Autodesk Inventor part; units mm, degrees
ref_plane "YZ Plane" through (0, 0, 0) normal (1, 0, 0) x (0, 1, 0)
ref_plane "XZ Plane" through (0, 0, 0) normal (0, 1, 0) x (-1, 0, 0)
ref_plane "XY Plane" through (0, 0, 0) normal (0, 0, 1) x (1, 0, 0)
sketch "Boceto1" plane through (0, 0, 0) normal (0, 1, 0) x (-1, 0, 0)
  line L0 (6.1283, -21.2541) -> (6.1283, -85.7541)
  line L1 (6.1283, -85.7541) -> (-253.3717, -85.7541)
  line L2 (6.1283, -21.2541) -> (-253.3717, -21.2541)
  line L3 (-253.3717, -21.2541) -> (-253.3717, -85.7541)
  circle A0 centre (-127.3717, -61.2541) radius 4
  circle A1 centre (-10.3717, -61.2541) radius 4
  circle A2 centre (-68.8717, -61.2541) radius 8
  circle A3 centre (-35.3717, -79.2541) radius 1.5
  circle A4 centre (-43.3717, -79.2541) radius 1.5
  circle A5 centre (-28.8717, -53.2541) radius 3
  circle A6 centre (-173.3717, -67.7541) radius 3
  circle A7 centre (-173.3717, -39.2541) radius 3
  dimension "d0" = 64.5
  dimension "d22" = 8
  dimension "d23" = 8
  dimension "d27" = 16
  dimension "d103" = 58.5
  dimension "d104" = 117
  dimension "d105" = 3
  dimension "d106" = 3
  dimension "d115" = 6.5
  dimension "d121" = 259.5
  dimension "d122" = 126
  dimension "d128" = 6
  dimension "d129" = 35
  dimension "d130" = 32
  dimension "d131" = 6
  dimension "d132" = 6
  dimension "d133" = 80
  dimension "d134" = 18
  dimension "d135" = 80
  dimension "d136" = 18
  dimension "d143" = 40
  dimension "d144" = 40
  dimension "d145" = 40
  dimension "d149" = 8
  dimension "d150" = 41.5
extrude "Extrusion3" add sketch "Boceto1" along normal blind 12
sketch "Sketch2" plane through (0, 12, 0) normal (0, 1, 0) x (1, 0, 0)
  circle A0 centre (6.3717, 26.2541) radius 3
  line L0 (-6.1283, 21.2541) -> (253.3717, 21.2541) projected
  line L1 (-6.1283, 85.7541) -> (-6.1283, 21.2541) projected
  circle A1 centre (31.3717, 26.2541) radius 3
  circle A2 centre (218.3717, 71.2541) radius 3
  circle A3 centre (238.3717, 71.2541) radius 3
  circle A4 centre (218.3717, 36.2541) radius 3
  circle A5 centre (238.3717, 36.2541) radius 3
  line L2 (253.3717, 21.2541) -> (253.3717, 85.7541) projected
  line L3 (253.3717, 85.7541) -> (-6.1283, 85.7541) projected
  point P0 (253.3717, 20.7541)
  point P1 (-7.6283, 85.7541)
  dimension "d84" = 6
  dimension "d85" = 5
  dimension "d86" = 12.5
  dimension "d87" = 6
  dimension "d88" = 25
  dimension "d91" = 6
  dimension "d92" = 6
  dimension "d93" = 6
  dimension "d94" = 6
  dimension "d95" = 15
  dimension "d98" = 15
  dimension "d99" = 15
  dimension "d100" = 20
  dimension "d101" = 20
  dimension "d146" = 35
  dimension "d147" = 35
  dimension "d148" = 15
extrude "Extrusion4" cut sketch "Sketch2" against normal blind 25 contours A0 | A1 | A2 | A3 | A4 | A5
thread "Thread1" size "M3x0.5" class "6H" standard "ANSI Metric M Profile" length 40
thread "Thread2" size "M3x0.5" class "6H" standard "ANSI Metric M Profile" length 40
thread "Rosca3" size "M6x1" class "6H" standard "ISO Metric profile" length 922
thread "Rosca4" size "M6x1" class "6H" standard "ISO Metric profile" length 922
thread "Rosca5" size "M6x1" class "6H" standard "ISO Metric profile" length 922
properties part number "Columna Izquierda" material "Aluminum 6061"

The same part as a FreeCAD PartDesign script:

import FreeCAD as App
import Part
import Sketcher
from FreeCAD import Vector

doc = App.newDocument("Part")
body = doc.addObject("PartDesign::Body", "Body")

sketch1 = body.newObject("Sketcher::SketchObject", "Sketch")
sketch1.AttachmentSupport = (doc.getObject("XZ_Plane"), [""])
sketch1.MapMode = "FlatFace"
sketch1.addGeometry(Part.LineSegment(Vector(-6.1, -85.8, 0), Vector(-6.1, -21.3, 0)), False)
sketch1.addGeometry(Part.LineSegment(Vector(-6.1, -21.3, 0), Vector(253.4, -21.3, 0)), False)
sketch1.addGeometry(Part.LineSegment(Vector(253.4, -21.3, 0), Vector(253.4, -85.8, 0)), False)
sketch1.addGeometry(Part.LineSegment(Vector(253.4, -85.8, 0), Vector(-6.1, -85.8, 0)), False)
sketch1.addGeometry(Part.Circle(Vector(173.4, -67.8, 0), Vector(0, 0, 1), 3), False)
sketch1.addGeometry(Part.Circle(Vector(127.4, -61.3, 0), Vector(0, 0, 1), 4), False)
sketch1.addGeometry(Part.Circle(Vector(43.4, -79.3, 0), Vector(0, 0, 1), 1.5), False)
sketch1.addGeometry(Part.Circle(Vector(35.4, -79.3, 0), Vector(0, 0, 1), 1.5), False)
sketch1.addGeometry(Part.Circle(Vector(68.9, -61.3, 0), Vector(0, 0, 1), 8), False)
sketch1.addGeometry(Part.Circle(Vector(10.4, -61.3, 0), Vector(0, 0, 1), 4), False)
sketch1.addGeometry(Part.Circle(Vector(173.4, -39.3, 0), Vector(0, 0, 1), 3), False)
sketch1.addGeometry(Part.Circle(Vector(28.9, -53.3, 0), Vector(0, 0, 1), 3), False)
sketch1.addConstraint(Sketcher.Constraint("Coincident", 0, 2, 1, 1))
sketch1.addConstraint(Sketcher.Constraint("Coincident", 1, 2, 2, 1))
sketch1.addConstraint(Sketcher.Constraint("Coincident", 2, 2, 3, 1))
sketch1.addConstraint(Sketcher.Constraint("Coincident", 3, 2, 0, 1))
sketch1.addConstraint(Sketcher.Constraint("Vertical", 0))
sketch1.addConstraint(Sketcher.Constraint("Horizontal", 1))
sketch1.addConstraint(Sketcher.Constraint("Vertical", 2))
sketch1.addConstraint(Sketcher.Constraint("Horizontal", 3))
sketch1.addConstraint(Sketcher.Constraint("Equal", 6, 7))
sketch1.addConstraint(Sketcher.Constraint("Equal", 5, 9))
sketch1.addConstraint(Sketcher.Constraint("Equal", 4, 10))
sketch1.addConstraint(Sketcher.Constraint("Equal", 10, 11))
sketch1.addConstraint(Sketcher.Constraint("Horizontal", 6, 3, 7, 3))
sketch1.addConstraint(Sketcher.Constraint("Horizontal", 5, 3, 8, 3))
sketch1.addConstraint(Sketcher.Constraint("Horizontal", 8, 3, 9, 3))
sketch1.addConstraint(Sketcher.Constraint("Vertical", 4, 3, 10, 3))
sketch1.addConstraint(Sketcher.Constraint("Diameter", 4, 6.0))
sketch1.addConstraint(Sketcher.Constraint("Diameter", 5, 8.0))
sketch1.addConstraint(Sketcher.Constraint("Diameter", 6, 3.0))
sketch1.addConstraint(Sketcher.Constraint("Diameter", 8, 16.0))
sketch1.addConstraint(Sketcher.Constraint("DistanceX", 1, 1, 1, 2, 259.5))
sketch1.addConstraint(Sketcher.Constraint("DistanceY", 0, 1, 0, 2, 64.5))
sketch1.addConstraint(Sketcher.Constraint("DistanceY", 6, 3, 5, 3, 18.0))
sketch1.addConstraint(Sketcher.Constraint("DistanceX", 7, 3, 6, 3, 8.0))
sketch1.addConstraint(Sketcher.Constraint("DistanceX", 9, 3, 5, 3, 117.0))
sketch1.addConstraint(Sketcher.Constraint("DistanceY", 6, 3, 10, 3, 40.0))
sketch1.addConstraint(Sketcher.Constraint("DistanceY", 9, 3, 11, 3, 8.0))
sketch1.addConstraint(Sketcher.Constraint("DistanceX", 11, 3, 8, 3, 40.0))
sketch1.addConstraint(Sketcher.Constraint("DistanceY", 9, 3, 0, 2, 40.0))
sketch1.addConstraint(Sketcher.Constraint("DistanceX", 0, 2, 11, 3, 35.0))
sketch1.addConstraint(Sketcher.Constraint("DistanceX", 10, 3, 1, 2, 80.0))
sketch1.addConstraint(Sketcher.Constraint("DistanceX", 5, 3, 1, 2, 126.0))
sketch1.addConstraint(Sketcher.Constraint("DistanceY", 2, 2, 4, 3, 18.0))
sketch1.addConstraint(Sketcher.Constraint("DistanceX", 11, 3, 7, 3, 6.5))
sketch1.addConstraint(Sketcher.Constraint("DistanceY", 4, 3, -1, 1, 67.754))
sketch1.addConstraint(Sketcher.Constraint("DistanceX", -1, 1, 4, 3, 173.3717))
pad1 = body.newObject("PartDesign::Pad", "Pad")
pad1.Profile = sketch1
pad1.Length = 12
pad1.Reversed = True

sketch2 = body.newObject("Sketcher::SketchObject", "Sketch001")
sketch2.AttachmentSupport = (doc.getObject("XZ_Plane"), [""])
sketch2.MapMode = "FlatFace"
sketch2.AttachmentOffset = App.Placement(Vector(0, 0, -12), App.Rotation())
sketch2.addGeometry(Part.Circle(Vector(6.4, -26.3, 0), Vector(0, 0, 1), 3), False)
sketch2.addGeometry(Part.Circle(Vector(31.4, -26.3, 0), Vector(0, 0, 1), 3), False)
sketch2.addGeometry(Part.Circle(Vector(218.4, -71.3, 0), Vector(0, 0, 1), 3), False)
sketch2.addGeometry(Part.Circle(Vector(238.4, -71.3, 0), Vector(0, 0, 1), 3), False)
sketch2.addGeometry(Part.Circle(Vector(218.4, -36.3, 0), Vector(0, 0, 1), 3), False)
sketch2.addGeometry(Part.Circle(Vector(238.4, -36.3, 0), Vector(0, 0, 1), 3), False)
sketch2.addConstraint(Sketcher.Constraint("Equal", 0, 1))
sketch2.addConstraint(Sketcher.Constraint("Equal", 1, 2))
sketch2.addConstraint(Sketcher.Constraint("Equal", 2, 3))
sketch2.addConstraint(Sketcher.Constraint("Equal", 3, 4))
sketch2.addConstraint(Sketcher.Constraint("Equal", 4, 5))
sketch2.addConstraint(Sketcher.Constraint("Horizontal", 0, 3, 1, 3))
sketch2.addConstraint(Sketcher.Constraint("Horizontal", 2, 3, 3, 3))
sketch2.addConstraint(Sketcher.Constraint("Horizontal", 4, 3, 5, 3))
sketch2.addConstraint(Sketcher.Constraint("Vertical", 2, 3, 4, 3))
sketch2.addConstraint(Sketcher.Constraint("Vertical", 3, 3, 5, 3))
sketch2.addConstraint(Sketcher.Constraint("Diameter", 0, 6.0))
sketch2.addConstraint(Sketcher.Constraint("DistanceX", 0, 3, 1, 3, 25.0))
sketch2.addConstraint(Sketcher.Constraint("DistanceX", 2, 3, 3, 3, 20.0))
sketch2.addConstraint(Sketcher.Constraint("DistanceY", 2, 3, 4, 3, 35.0))
sketch2.addConstraint(Sketcher.Constraint("DistanceX", 1, 3, 2, 3, 187.0))
sketch2.addConstraint(Sketcher.Constraint("DistanceY", 2, 3, 1, 3, 45.0))
sketch2.addConstraint(Sketcher.Constraint("DistanceY", 0, 3, -1, 1, 26.254))
sketch2.addConstraint(Sketcher.Constraint("DistanceX", -1, 1, 0, 3, 6.3717))
pocket1 = body.newObject("PartDesign::Pocket", "Pocket")
pocket1.Profile = sketch2
pocket1.Length = 25
pocket1.Reversed = True

doc.recompute()
